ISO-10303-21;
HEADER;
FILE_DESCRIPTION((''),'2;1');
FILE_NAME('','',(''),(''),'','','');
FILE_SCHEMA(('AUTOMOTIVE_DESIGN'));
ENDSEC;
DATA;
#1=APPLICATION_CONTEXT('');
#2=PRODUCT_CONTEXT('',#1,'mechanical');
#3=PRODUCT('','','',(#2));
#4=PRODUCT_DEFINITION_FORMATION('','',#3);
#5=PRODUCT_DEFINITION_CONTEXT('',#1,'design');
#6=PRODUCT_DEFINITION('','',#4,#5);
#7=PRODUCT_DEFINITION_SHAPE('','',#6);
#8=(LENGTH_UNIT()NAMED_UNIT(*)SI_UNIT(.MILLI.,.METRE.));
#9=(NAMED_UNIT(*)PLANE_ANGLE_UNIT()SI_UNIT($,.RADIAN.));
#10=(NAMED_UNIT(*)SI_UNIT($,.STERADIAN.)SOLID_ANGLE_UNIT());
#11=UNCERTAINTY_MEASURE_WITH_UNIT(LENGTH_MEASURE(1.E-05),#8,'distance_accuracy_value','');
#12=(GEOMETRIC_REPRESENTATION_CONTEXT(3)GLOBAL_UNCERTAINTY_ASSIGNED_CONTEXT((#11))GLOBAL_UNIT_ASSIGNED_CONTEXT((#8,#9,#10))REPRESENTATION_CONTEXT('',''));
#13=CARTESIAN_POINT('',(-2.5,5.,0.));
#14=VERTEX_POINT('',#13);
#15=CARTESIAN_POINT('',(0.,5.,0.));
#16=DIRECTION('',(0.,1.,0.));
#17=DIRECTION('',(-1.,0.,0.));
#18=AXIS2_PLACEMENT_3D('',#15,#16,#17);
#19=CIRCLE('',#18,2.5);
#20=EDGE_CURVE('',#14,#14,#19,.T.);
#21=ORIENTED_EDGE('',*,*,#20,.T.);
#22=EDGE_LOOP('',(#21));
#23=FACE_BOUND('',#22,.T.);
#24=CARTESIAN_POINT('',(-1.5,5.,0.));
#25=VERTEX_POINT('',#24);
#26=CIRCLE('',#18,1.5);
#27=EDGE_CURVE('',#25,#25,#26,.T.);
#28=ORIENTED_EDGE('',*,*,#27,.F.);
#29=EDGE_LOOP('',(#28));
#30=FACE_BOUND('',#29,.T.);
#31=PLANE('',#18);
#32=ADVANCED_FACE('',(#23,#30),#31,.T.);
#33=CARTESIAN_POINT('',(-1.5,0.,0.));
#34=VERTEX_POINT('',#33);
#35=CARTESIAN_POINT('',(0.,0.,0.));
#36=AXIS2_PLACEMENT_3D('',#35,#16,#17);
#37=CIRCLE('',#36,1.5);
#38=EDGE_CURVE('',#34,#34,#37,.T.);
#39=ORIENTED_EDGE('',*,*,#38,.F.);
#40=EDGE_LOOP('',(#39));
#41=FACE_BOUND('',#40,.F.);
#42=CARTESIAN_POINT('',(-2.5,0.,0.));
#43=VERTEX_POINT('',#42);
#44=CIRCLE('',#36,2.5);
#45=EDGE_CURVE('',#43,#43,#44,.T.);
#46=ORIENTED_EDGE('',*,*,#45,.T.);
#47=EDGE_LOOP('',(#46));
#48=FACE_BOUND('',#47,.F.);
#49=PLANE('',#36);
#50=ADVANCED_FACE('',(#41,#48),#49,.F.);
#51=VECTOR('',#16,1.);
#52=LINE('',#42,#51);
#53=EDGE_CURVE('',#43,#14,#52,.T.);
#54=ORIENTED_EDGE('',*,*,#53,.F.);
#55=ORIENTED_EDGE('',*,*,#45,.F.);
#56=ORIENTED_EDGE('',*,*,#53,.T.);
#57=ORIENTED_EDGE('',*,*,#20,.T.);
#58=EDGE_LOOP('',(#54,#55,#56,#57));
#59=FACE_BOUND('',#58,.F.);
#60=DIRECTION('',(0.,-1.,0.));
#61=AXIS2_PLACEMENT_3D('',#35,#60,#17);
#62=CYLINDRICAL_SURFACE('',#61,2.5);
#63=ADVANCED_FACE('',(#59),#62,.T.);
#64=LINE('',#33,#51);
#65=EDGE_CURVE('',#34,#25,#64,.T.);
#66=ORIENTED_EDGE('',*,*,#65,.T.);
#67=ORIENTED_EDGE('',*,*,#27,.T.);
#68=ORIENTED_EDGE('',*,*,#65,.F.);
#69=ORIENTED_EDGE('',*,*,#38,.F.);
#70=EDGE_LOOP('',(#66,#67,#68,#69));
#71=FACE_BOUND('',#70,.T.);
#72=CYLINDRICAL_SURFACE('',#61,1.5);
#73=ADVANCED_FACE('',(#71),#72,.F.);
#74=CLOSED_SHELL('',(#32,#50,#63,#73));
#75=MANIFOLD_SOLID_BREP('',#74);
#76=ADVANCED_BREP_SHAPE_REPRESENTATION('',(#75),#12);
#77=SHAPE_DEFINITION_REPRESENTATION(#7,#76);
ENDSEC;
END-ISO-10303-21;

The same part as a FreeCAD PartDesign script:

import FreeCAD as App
import Part
import Sketcher
Q = App.Units.Quantity

doc = App.newDocument("Part")
body = doc.addObject("PartDesign::Body", "Body")

sketch1 = body.newObject("Sketcher::SketchObject", "Sketch")
sketch1.AttachmentSupport = (doc.getObject("XZ_Plane"), [""])
sketch1.MapMode = "FlatFace"
sketch1.addGeometry(Part.Circle(App.Vector(0, 0, 0), App.Vector(0, 0, 1), 2.5), False)
sketch1.addGeometry(Part.Circle(App.Vector(0, 0, 0), App.Vector(0, 0, 1), 1.5), False)
sketch1.addConstraint(Sketcher.Constraint("Coincident", 0, 3, -1, 1))
sketch1.addConstraint(Sketcher.Constraint("Coincident", 1, 3, -1, 1))
sketch1.addConstraint(Sketcher.Constraint("Diameter", 0, Q("5 mm")))
sketch1.addConstraint(Sketcher.Constraint("Diameter", 1, Q("3 mm")))
pad1 = body.newObject("PartDesign::Pad", "Pad")
pad1.Profile = sketch1
pad1.Length = 5
pad1.Reversed = True

doc.recompute()
